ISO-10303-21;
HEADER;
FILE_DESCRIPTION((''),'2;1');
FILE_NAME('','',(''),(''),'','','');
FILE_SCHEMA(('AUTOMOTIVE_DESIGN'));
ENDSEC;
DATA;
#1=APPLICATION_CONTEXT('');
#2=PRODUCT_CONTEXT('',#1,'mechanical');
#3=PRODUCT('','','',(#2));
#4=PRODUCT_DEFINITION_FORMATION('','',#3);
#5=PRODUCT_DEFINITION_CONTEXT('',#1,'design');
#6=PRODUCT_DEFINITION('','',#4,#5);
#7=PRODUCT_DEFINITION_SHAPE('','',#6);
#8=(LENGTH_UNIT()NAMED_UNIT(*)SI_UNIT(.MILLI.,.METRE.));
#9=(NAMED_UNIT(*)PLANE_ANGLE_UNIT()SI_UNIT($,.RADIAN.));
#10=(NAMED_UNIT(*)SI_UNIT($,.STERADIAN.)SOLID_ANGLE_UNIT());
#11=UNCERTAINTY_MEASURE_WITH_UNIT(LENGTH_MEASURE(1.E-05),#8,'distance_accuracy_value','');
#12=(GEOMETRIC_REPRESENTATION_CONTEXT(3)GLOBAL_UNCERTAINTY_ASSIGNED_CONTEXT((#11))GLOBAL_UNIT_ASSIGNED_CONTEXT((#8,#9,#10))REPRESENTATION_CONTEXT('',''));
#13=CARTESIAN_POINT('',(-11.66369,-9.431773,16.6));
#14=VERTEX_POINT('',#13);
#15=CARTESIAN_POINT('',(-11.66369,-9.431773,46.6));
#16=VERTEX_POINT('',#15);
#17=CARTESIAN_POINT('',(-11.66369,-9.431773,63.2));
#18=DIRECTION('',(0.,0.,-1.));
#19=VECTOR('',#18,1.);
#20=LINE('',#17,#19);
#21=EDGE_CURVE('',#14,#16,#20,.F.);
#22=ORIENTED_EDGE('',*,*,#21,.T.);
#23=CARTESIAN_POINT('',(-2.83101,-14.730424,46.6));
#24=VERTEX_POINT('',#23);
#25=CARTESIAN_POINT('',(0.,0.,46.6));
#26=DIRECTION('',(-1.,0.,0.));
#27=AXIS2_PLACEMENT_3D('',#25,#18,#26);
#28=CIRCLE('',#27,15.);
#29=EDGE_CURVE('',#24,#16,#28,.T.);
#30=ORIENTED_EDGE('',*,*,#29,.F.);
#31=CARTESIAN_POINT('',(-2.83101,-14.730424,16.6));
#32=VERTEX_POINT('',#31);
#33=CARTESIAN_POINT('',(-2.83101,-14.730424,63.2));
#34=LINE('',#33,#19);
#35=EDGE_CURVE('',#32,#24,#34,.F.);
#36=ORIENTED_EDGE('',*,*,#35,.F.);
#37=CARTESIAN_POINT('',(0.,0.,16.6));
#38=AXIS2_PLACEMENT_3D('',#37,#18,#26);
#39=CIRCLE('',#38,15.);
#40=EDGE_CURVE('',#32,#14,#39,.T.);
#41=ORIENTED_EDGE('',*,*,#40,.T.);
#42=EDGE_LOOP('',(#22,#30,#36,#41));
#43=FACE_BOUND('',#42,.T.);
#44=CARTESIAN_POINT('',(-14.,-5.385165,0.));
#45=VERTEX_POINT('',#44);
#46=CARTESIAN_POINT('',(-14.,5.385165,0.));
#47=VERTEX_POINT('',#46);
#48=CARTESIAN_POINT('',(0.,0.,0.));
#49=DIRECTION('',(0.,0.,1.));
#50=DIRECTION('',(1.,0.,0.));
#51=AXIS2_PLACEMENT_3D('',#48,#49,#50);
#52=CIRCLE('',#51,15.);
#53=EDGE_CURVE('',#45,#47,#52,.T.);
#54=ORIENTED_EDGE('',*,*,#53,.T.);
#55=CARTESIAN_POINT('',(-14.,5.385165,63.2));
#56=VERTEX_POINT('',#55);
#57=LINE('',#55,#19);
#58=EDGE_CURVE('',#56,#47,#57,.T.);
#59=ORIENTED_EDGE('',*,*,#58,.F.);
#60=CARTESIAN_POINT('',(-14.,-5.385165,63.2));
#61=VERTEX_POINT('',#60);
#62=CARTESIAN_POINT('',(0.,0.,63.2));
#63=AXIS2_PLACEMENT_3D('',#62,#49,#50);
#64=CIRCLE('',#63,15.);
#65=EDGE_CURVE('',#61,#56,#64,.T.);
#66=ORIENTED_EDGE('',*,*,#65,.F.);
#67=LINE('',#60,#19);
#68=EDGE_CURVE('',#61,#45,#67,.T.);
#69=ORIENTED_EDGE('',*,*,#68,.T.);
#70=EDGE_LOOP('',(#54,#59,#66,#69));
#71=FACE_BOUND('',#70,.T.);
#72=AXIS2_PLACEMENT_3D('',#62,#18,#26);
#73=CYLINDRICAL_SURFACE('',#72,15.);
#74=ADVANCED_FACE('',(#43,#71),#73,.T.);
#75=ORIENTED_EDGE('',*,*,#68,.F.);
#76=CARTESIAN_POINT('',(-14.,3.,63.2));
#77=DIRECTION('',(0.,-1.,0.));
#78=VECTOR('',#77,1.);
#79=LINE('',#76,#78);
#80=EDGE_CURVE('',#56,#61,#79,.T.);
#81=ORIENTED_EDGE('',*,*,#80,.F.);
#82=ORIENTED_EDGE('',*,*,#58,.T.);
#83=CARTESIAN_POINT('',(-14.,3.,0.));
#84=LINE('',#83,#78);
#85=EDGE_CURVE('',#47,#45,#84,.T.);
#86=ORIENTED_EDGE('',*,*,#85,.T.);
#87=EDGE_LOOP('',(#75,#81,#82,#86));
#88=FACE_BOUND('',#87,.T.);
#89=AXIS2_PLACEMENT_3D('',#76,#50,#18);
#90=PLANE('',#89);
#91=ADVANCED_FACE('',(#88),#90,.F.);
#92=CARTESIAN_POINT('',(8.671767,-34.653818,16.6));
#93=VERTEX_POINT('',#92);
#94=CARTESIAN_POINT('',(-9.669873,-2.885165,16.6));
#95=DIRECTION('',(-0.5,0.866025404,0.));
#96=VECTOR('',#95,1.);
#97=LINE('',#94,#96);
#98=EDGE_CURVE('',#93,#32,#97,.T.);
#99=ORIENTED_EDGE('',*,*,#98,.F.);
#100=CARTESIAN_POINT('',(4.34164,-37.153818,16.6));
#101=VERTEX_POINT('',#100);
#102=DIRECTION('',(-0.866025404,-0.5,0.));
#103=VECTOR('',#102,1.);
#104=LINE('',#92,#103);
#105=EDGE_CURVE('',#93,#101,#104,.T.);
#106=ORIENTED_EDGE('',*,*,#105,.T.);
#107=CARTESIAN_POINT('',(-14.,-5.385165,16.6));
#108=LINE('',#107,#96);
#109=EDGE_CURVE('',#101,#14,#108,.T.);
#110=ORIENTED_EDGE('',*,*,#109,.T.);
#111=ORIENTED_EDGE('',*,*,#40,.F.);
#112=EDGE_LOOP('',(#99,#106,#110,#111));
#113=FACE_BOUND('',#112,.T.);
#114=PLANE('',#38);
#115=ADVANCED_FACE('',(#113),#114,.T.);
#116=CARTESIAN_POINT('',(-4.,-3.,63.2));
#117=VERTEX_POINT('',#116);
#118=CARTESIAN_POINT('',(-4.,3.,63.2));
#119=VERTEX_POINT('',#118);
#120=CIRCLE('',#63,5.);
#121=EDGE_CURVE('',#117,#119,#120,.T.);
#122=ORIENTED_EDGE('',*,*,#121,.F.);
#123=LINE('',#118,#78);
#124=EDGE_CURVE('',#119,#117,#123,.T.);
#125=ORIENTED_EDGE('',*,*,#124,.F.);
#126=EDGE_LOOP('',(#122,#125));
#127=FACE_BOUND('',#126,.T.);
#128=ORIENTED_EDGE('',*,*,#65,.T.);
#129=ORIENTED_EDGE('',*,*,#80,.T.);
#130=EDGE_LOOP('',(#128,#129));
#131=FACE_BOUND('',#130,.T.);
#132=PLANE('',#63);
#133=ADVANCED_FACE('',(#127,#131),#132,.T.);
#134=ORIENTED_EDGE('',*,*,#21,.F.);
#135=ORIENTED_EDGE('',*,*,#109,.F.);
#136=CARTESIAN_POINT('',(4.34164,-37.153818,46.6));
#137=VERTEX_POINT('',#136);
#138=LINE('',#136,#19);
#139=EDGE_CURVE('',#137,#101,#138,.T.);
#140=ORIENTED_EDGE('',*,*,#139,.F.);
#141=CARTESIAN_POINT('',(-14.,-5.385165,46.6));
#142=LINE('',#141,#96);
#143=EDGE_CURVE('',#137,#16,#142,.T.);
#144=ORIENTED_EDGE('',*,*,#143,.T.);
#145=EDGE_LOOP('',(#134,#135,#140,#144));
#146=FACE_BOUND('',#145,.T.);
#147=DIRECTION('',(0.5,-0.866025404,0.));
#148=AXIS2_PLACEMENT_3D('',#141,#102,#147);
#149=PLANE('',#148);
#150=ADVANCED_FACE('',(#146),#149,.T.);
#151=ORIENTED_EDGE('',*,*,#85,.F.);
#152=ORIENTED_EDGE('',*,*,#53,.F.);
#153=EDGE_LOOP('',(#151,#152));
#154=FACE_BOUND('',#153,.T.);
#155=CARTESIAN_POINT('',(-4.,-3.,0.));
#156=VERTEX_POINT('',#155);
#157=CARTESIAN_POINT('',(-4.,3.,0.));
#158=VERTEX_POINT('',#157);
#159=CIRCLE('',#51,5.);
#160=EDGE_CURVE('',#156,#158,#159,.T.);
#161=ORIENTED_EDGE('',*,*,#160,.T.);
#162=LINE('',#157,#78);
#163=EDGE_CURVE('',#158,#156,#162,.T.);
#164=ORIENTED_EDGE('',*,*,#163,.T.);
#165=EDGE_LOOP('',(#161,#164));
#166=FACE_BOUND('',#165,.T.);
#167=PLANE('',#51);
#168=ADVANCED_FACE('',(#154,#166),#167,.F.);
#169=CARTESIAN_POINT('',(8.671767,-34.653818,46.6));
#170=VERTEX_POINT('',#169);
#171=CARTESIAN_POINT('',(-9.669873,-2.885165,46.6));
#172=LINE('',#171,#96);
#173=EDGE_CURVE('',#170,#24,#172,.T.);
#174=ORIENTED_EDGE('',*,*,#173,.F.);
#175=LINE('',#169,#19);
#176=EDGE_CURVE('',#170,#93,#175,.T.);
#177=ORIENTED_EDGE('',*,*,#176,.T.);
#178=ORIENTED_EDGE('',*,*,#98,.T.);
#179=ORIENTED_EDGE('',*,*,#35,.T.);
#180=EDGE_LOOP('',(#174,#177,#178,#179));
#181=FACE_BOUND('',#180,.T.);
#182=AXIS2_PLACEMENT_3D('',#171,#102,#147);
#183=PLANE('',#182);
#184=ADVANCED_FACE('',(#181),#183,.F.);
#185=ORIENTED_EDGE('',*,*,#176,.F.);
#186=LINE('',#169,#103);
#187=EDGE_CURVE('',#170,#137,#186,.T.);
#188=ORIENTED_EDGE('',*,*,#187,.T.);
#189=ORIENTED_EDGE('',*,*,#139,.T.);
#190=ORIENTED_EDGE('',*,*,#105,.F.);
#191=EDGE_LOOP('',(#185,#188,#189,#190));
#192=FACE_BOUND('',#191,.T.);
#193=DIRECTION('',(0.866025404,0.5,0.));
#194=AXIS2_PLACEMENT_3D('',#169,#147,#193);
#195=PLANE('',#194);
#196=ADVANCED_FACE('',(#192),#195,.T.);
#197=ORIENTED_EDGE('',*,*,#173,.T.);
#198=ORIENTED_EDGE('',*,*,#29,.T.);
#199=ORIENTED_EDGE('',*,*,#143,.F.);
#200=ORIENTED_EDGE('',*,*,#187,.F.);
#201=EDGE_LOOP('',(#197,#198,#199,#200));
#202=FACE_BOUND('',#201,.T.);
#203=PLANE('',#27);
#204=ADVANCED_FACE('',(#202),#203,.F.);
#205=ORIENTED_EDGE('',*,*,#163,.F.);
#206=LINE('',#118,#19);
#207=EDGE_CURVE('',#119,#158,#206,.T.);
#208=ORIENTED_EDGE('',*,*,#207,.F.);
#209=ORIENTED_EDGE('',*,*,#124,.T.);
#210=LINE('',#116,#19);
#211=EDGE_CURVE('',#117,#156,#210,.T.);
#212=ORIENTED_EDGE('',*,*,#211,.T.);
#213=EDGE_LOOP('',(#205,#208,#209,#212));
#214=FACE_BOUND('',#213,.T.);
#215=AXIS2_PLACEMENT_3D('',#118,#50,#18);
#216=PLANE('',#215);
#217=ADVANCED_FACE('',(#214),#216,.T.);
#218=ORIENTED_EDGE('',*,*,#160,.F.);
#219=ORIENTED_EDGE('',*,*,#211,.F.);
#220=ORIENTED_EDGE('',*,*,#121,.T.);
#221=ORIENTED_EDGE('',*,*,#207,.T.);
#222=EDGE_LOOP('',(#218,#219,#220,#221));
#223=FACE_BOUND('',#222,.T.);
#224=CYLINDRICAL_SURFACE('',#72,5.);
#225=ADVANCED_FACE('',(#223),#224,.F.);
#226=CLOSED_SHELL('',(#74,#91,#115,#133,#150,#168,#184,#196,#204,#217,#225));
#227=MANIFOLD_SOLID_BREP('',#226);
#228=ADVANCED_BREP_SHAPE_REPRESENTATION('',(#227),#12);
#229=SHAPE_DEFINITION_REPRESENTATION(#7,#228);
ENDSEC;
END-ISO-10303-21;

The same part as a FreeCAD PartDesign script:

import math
import FreeCAD as App
import Part
import Sketcher
from FreeCAD import Vector
Q = App.Units.Quantity

doc = App.newDocument("Part")
body = doc.addObject("PartDesign::Body", "Body")

# Sketch on XY plane
sketch1 = body.newObject("Sketcher::SketchObject", "Sketch")
sketch1.AttachmentSupport = (doc.getObject("XY_Plane"), [""])
sketch1.MapMode = "FlatFace"
sketch1.addGeometry(Part.LineSegment(Vector(-14, 5, 0), Vector(-14, -5, 0)), False)
sketch1.addGeometry(Part.ArcOfCircle(Part.Circle(Vector(0, 0, 0), Vector(0, 0, 1), 15), math.radians(-159), math.radians(159)), False)
sketch1.addGeometry(Part.LineSegment(Vector(-4, -3, 0), Vector(-4, 3, 0)), False)
sketch1.addGeometry(Part.ArcOfCircle(Part.Circle(Vector(0, 0, 0), Vector(0, 0, 1), 5), math.radians(-143), math.radians(143)), False)
sketch1.addConstraint(Sketcher.Constraint("Coincident", 0, 1, 1, 2))
sketch1.addConstraint(Sketcher.Constraint("Coincident", 1, 1, 0, 2))
sketch1.addConstraint(Sketcher.Constraint("Coincident", 2, 1, 3, 1))
sketch1.addConstraint(Sketcher.Constraint("Coincident", 3, 2, 2, 2))
sketch1.addConstraint(Sketcher.Constraint("Vertical", 0))
sketch1.addConstraint(Sketcher.Constraint("Vertical", 2))
sketch1.addConstraint(Sketcher.Constraint("Coincident", 1, 3, -1, 1))
sketch1.addConstraint(Sketcher.Constraint("Coincident", 3, 3, -1, 1))
sketch1.addConstraint(Sketcher.Constraint("Radius", 1, 15.0))
sketch1.addConstraint(Sketcher.Constraint("Radius", 3, 5.0))
sketch1.addConstraint(Sketcher.Constraint("DistanceY", 2, 1, 2, 2, 6.0))
sketch1.addConstraint(Sketcher.Constraint("DistanceX", 0, 1, -1, 1, 14.0))
pad1 = body.newObject("PartDesign::Pad", "Pad")
pad1.Profile = sketch1
pad1.Length = 63.2

# Sketch on XY plane
sketch2 = body.newObject("Sketcher::SketchObject", "Sketch001")
sketch2.AttachmentSupport = (doc.getObject("XY_Plane"), [""])
sketch2.MapMode = "FlatFace"
sketch2.AttachmentOffset = App.Placement(Vector(0, 0, 31.6), App.Rotation())
sketch2.addGeometry(Part.LineSegment(Vector(-14, -5, 0), Vector(4, -37, 0)), False)
sketch2.addGeometry(Part.LineSegment(Vector(4, -37, 0), Vector(9, -35, 0)), False)
sketch2.addGeometry(Part.LineSegment(Vector(9, -35, 0), Vector(-10, -3, 0)), False)
sketch2.addGeometry(Part.LineSegment(Vector(-10, -3, 0), Vector(-14, -5, 0)), False)
sketch2.addConstraint(Sketcher.Constraint("Coincident", 0, 2, 1, 1))
sketch2.addConstraint(Sketcher.Constraint("Coincident", 1, 2, 2, 1))
sketch2.addConstraint(Sketcher.Constraint("Coincident", 2, 2, 3, 1))
sketch2.addConstraint(Sketcher.Constraint("Coincident", 3, 2, 0, 1))
sketch2.addConstraint(Sketcher.Constraint("Perpendicular", 0, 1))
sketch2.addConstraint(Sketcher.Constraint("Perpendicular", 1, 2))
sketch2.addConstraint(Sketcher.Constraint("Perpendicular", 2, 3))
sketch2.addConstraint(Sketcher.Constraint("Angle", 0, Q("-60 deg")))
sketch2.addConstraint(Sketcher.Constraint("Distance", 1, 5.0))
sketch2.addConstraint(Sketcher.Constraint("DistanceX", 3, 2, -1, 1, 14.0))
sketch2.addConstraint(Sketcher.Constraint("Distance", 0, 36.68328))
sketch2.addConstraint(Sketcher.Constraint("DistanceY", 0, 2, -1, 1, 37.153818))
pad2 = body.newObject("PartDesign::Pad", "Pad001")
pad2.Profile = sketch2
pad2.Length = 30
pad2.Midplane = True

doc.recompute()
